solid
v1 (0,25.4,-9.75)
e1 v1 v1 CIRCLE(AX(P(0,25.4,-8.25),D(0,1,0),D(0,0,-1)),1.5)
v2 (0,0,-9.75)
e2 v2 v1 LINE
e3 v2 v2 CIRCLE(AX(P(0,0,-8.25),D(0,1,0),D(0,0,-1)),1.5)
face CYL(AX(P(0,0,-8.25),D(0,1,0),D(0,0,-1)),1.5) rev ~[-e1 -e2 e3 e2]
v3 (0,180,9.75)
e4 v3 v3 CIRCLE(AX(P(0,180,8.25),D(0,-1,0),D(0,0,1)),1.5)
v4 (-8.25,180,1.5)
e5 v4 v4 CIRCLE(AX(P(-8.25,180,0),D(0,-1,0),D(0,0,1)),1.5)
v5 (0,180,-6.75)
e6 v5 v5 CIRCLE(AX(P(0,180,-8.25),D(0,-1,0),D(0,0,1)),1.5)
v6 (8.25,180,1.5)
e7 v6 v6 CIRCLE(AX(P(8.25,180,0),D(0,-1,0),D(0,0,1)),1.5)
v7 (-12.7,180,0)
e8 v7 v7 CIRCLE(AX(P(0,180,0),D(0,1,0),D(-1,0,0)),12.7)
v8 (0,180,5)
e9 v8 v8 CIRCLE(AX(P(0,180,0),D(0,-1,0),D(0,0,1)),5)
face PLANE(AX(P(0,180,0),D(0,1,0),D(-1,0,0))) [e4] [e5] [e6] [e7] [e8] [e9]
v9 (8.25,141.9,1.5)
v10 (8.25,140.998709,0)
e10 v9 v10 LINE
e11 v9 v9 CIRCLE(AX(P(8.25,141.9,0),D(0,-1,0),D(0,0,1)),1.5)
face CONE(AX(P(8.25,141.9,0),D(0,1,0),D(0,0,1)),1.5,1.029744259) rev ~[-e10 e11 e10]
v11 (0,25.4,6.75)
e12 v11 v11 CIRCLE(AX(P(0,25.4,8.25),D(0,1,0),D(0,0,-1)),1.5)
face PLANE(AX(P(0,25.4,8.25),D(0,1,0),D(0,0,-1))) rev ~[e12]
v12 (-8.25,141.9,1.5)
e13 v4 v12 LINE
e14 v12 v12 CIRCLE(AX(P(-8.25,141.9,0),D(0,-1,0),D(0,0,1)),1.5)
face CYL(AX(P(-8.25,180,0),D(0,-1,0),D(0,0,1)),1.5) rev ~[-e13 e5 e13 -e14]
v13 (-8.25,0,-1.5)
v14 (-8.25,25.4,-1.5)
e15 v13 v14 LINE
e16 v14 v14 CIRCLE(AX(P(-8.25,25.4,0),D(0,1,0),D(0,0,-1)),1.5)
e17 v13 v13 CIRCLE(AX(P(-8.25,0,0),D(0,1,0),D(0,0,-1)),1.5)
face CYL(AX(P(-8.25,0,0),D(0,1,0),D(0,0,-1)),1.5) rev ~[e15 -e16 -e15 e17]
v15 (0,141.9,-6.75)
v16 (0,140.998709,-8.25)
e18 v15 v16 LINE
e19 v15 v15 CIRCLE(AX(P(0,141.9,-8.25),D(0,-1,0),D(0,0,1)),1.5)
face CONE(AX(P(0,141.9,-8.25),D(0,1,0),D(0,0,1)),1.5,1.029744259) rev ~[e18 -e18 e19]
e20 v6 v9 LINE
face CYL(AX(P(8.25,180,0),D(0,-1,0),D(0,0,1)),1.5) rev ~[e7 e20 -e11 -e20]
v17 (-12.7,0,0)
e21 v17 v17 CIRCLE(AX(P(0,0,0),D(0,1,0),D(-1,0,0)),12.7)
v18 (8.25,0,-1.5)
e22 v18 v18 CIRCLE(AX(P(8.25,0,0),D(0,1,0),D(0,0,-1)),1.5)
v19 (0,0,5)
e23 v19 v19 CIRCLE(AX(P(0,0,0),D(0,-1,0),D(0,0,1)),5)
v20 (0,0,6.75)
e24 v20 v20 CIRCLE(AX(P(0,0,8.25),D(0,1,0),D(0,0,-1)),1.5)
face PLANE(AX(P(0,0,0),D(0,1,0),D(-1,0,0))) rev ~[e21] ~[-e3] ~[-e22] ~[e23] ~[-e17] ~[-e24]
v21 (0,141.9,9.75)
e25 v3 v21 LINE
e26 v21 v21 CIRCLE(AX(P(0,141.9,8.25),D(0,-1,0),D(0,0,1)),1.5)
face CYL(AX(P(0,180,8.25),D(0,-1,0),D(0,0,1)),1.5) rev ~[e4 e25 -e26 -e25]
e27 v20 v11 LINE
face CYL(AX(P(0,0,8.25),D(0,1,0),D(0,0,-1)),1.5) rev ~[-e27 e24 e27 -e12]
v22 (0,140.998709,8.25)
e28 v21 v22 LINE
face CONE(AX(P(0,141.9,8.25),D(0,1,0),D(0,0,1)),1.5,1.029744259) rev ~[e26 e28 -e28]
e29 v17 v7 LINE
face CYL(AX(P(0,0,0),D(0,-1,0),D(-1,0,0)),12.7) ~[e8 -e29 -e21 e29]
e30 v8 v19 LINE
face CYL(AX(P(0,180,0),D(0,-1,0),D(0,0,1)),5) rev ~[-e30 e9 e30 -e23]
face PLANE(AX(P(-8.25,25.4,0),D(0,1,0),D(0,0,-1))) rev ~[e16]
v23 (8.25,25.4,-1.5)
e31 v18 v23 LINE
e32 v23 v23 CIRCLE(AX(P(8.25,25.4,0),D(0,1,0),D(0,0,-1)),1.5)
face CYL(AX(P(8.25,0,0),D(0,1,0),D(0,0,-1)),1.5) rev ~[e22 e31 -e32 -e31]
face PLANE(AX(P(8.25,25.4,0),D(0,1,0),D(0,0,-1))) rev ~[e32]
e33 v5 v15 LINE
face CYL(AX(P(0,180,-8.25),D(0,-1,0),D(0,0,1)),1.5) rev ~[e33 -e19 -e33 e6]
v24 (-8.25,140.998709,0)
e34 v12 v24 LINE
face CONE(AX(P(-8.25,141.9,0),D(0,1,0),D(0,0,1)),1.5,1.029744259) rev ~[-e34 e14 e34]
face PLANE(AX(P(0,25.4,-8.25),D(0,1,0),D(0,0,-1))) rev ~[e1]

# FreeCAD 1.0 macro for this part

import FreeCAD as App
import Part
import Sketcher

V = App.Vector
Q = App.Units.Quantity

doc = App.newDocument("Part")
body = doc.addObject("PartDesign::Body", "Body")

sketch1 = body.newObject("Sketcher::SketchObject", "Sketch")
sketch1.AttachmentSupport = (doc.getObject("XZ_Plane"), [""])
sketch1.MapMode = "FlatFace"
sketch1.addGeometry(Part.Circle(V(0, 0, 0), V(0, 0, 1), 13), False)
sketch1.addConstraint(Sketcher.Constraint("Coincident", 0, 3, -1, 1))
sketch1.addConstraint(Sketcher.Constraint("Diameter", 0, Q("1 in")))
pad1 = body.newObject("PartDesign::Pad", "Pad")
pad1.Profile = sketch1
pad1.Length = 180
pad1.Reversed = True

sketch2 = body.newObject("Sketcher::SketchObject", "Sketch001")
sketch2.AttachmentSupport = (doc.getObject("XZ_Plane"), [""])
sketch2.MapMode = "FlatFace"
sketch2.AttachmentOffset = App.Placement(V(0, 0, -180), App.Rotation())
sketch2.addGeometry(Part.Circle(V(0, 0, 0), V(0, 0, 1), 5), False)
sketch2.addConstraint(Sketcher.Constraint("Coincident", 0, 3, -1, 1))
sketch2.addConstraint(Sketcher.Constraint("Diameter", 0, Q("0.3937 in")))
doc.recompute()
hole = body.newObject("PartDesign::Hole", "Hole")
hole.Profile = sketch2
hole.ThreadType = "None"
hole.Diameter = Q("0.3937008 in")
hole.DepthType = "ThroughAll"
hole.Reversed = True

sketch3 = body.newObject("Sketcher::SketchObject", "Sketch002")
sketch3.AttachmentSupport = (doc.getObject("XZ_Plane"), [""])
sketch3.MapMode = "FlatFace"
sketch3.AttachmentOffset = App.Placement(V(0, 0, -180), App.Rotation())
sketch3.addGeometry(Part.Circle(V(0, 8.2, 0), V(0, 0, 1), 1.5), False)
sketch3.addGeometry(Part.Circle(V(-8.2, 0, 0), V(0, 0, 1), 1.5), False)
sketch3.addGeometry(Part.Circle(V(0, -8.2, 0), V(0, 0, 1), 1.5), False)
sketch3.addGeometry(Part.Circle(V(8.2, 0, 0), V(0, 0, 1), 1.5), False)
sketch3.addConstraint(Sketcher.Constraint("Equal", 0, 1))
sketch3.addConstraint(Sketcher.Constraint("Equal", 1, 2))
sketch3.addConstraint(Sketcher.Constraint("Equal", 2, 3))
sketch3.addConstraint(Sketcher.Constraint("Symmetric", 0, 3, 2, 3, -1, 1))
sketch3.addConstraint(Sketcher.Constraint("Symmetric", 1, 3, 3, 3, -1, 1))
sketch3.addConstraint(Sketcher.Constraint("PointOnObject", 0, 3, -2))
sketch3.addConstraint(Sketcher.Constraint("PointOnObject", 1, 3, -1))
sketch3.addConstraint(Sketcher.Constraint("Diameter", 0, Q("0.1181 in")))
sketch3.addConstraint(Sketcher.Constraint("DistanceY", -1, 1, 0, 3, Q("0.3248 in")))
sketch3.addConstraint(Sketcher.Constraint("DistanceX", 1, 3, -1, 1, Q("0.3248 in")))
doc.recompute()
hole2 = body.newObject("PartDesign::Hole", "Hole001")
hole2.Profile = sketch3
hole2.ThreadType = "None"
hole2.Diameter = Q("0.1181102 in")
hole2.DepthType = "Dimension"
hole2.Depth = Q("1.5 in")
hole2.DrillPoint = "Angled"
hole2.DrillPointAngle = 118
hole2.Reversed = True

sketch4 = body.newObject("Sketcher::SketchObject", "Sketch003")
sketch4.AttachmentSupport = (doc.getObject("XZ_Plane"), [""])
sketch4.MapMode = "FlatFace"
sketch4.addGeometry(Part.Circle(V(8.2, 0, 0), V(0, 0, 1), 1.5), False)
sketch4.addGeometry(Part.Circle(V(0, 8.2, 0), V(0, 0, 1), 1.5), False)
sketch4.addGeometry(Part.Circle(V(-8.2, 0, 0), V(0, 0, 1), 1.5), False)
sketch4.addGeometry(Part.Circle(V(0, -8.2, 0), V(0, 0, 1), 1.5), False)
sketch4.addConstraint(Sketcher.Constraint("Equal", 0, 1))
sketch4.addConstraint(Sketcher.Constraint("Equal", 1, 2))
sketch4.addConstraint(Sketcher.Constraint("Equal", 2, 3))
sketch4.addConstraint(Sketcher.Constraint("Symmetric", 0, 3, 2, 3, -1, 1))
sketch4.addConstraint(Sketcher.Constraint("Symmetric", 1, 3, 3, 3, -1, 1))
sketch4.addConstraint(Sketcher.Constraint("PointOnObject", 0, 3, -1))
sketch4.addConstraint(Sketcher.Constraint("PointOnObject", 1, 3, -2))
sketch4.addConstraint(Sketcher.Constraint("Diameter", 0, Q("0.1181 in")))
sketch4.addConstraint(Sketcher.Constraint("DistanceX", -1, 1, 0, 3, Q("0.3248 in")))
sketch4.addConstraint(Sketcher.Constraint("DistanceY", -1, 1, 1, 3, Q("0.3248 in")))
doc.recompute()
hole3 = body.newObject("PartDesign::Hole", "Hole002")
hole3.Profile = sketch4
hole3.ThreadType = "None"
hole3.Diameter = Q("0.1181102 in")
hole3.DepthType = "Dimension"
hole3.Depth = Q("1 in")
hole3.DrillPoint = "Flat"

doc.recompute()
